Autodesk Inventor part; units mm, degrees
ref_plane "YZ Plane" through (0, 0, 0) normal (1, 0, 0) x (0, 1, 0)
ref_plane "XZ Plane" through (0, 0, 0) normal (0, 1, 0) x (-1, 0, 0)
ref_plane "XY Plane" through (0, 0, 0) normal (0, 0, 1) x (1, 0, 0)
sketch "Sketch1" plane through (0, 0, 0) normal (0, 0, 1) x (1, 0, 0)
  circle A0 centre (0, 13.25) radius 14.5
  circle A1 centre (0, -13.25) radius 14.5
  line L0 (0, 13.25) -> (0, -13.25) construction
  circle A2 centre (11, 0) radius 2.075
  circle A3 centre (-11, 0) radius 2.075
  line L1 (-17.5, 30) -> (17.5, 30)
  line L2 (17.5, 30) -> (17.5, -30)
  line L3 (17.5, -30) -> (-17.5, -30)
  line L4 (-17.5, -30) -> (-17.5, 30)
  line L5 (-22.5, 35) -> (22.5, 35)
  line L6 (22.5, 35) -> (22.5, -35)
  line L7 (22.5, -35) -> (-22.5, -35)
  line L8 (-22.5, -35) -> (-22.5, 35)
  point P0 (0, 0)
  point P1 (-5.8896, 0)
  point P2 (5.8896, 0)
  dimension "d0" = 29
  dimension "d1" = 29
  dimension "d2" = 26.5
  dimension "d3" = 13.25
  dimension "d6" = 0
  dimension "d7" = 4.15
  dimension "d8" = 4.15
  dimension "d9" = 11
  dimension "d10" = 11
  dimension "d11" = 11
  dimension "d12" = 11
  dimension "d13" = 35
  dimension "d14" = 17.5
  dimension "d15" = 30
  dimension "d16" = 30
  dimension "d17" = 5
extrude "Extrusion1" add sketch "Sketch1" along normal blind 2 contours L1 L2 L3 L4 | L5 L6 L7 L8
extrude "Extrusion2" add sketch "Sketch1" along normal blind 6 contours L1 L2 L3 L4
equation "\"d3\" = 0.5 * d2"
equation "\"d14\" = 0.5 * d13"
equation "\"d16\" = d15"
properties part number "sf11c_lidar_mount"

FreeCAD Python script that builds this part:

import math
import FreeCAD as App
import Part
import Sketcher
from FreeCAD import Vector


def add_polygon(sketch, points):
    """Adds a closed chain of lines whose ends are joined by coincident constraints."""
    first, n = sketch.GeometryCount, len(points)
    for a, b in zip(points, points[1:] + points[:1]):
        sketch.addGeometry(Part.LineSegment(App.Vector(*a, 0), App.Vector(*b, 0)), False)
    for i in range(n):
        sketch.addConstraint(Sketcher.Constraint("Coincident", first + i, 2, first + (i + 1) % n, 1))

doc = App.newDocument("Part")
params = doc.addObject("Spreadsheet::Sheet", "Params")
for row, (alias, value) in enumerate([
    ("sketch1_radius", "14.5 mm"),
    ("sketch1_diameter", "4.15 mm"),
    ("sketch1_width", "45 mm"),
    ("pad1_length", "2 mm"),
    ("sketch2_radius", "14.5 mm"),
    ("sketch2_diameter", "4.15 mm"),
    ("sketch2_width", "35 mm"),
    ("pad2_length", "6 mm"),
], start=1):
    params.set(f"A{row}", alias)
    params.set(f"B{row}", "=" + value)
    params.setAlias(f"B{row}", alias)

body = doc.addObject("PartDesign::Body", "Body")

# Sketch on XY plane
sketch1 = body.newObject("Sketcher::SketchObject", "Sketch")
sketch1.AttachmentSupport = (doc.getObject("XY_Plane"), [""])
sketch1.MapMode = "FlatFace"
add_polygon(sketch1, [(22.5, 35), (-22.5, 35), (-22.5, -35), (22.5, -35)])  # lines 0-3
sketch1.addGeometry(Part.Circle(Vector(-11, 0, 0), Vector(0, 0, 1), 2.075), False)  # 4
sketch1.addGeometry(Part.ArcOfCircle(Part.Circle(Vector(0, 13.25, 0), Vector(0, 0, 1), 14.5), math.radians(-66.034909), math.radians(246.034909)), False)  # 5
sketch1.addGeometry(Part.ArcOfCircle(Part.Circle(Vector(0, -13.25, 0), Vector(0, 0, 1), 14.5), math.radians(113.965091), math.radians(426.034909)), False)  # 6
sketch1.addGeometry(Part.Circle(Vector(11, 0, 0), Vector(0, 0, 1), 2.075), False)  # 7
sketch1.addConstraint([
    Sketcher.Constraint("Coincident", 5, 1, 6, 2),
    Sketcher.Constraint("Coincident", 6, 1, 5, 2),
    Sketcher.Constraint("Horizontal", 0),
    Sketcher.Constraint("Vertical", 1),
    Sketcher.Constraint("Horizontal", 2),
    Sketcher.Constraint("Vertical", 3),
    Sketcher.Constraint("Equal", 5, 6),
    Sketcher.Constraint("Equal", 4, 7),
    Sketcher.Constraint("Symmetric", 5, 3, 6, 3, -1, 1),
    Sketcher.Constraint("Symmetric", 4, 3, 7, 3, -1, 1),
    Sketcher.Constraint("Symmetric", 0, 2, 2, 2, -1, 1),
    Sketcher.Constraint("PointOnObject", 4, 3, -1),
    Sketcher.Constraint("PointOnObject", 5, 3, -2),
    Sketcher.Constraint("Radius", 5, 14.5),
    Sketcher.Constraint("Diameter", 4, 4.15),
    Sketcher.Constraint("DistanceX", 4, 3, -1, 1, 11.0),
    Sketcher.Constraint("DistanceY", -1, 1, 0, 2, 35.0),
    Sketcher.Constraint("DistanceY", 6, 3, 5, 3, 26.5),
    Sketcher.Constraint("DistanceX", 0, 2, 0, 1, 45.0),
])
sketch1.setExpression("Constraints[17]", "Params.sketch1_radius")
sketch1.setExpression("Constraints[18]", "Params.sketch1_diameter")
sketch1.setExpression("Constraints[22]", "Params.sketch1_width")
pad1 = body.newObject("PartDesign::Pad", "Pad")
pad1.Profile = sketch1
pad1.setExpression("Length", "Params.pad1_length")

# Sketch on XY plane
sketch2 = body.newObject("Sketcher::SketchObject", "Sketch001")
sketch2.AttachmentSupport = (doc.getObject("XY_Plane"), [""])
sketch2.MapMode = "FlatFace"
add_polygon(sketch2, [(17.5, 30), (-17.5, 30), (-17.5, -30), (17.5, -30)])  # lines 0-3
sketch2.addGeometry(Part.Circle(Vector(-11, 0, 0), Vector(0, 0, 1), 2.075), False)  # 4
sketch2.addGeometry(Part.ArcOfCircle(Part.Circle(Vector(0, 13.25, 0), Vector(0, 0, 1), 14.5), math.radians(-66.034909), math.radians(246.034909)), False)  # 5
sketch2.addGeometry(Part.ArcOfCircle(Part.Circle(Vector(0, -13.25, 0), Vector(0, 0, 1), 14.5), math.radians(113.965091), math.radians(426.034909)), False)  # 6
sketch2.addGeometry(Part.Circle(Vector(11, 0, 0), Vector(0, 0, 1), 2.075), False)  # 7
sketch2.addConstraint([
    Sketcher.Constraint("Coincident", 5, 1, 6, 2),
    Sketcher.Constraint("Coincident", 6, 1, 5, 2),
    Sketcher.Constraint("Horizontal", 0),
    Sketcher.Constraint("Vertical", 1),
    Sketcher.Constraint("Horizontal", 2),
    Sketcher.Constraint("Vertical", 3),
    Sketcher.Constraint("Equal", 5, 6),
    Sketcher.Constraint("Equal", 4, 7),
    Sketcher.Constraint("Symmetric", 5, 3, 6, 3, -1, 1),
    Sketcher.Constraint("Symmetric", 4, 3, 7, 3, -1, 1),
    Sketcher.Constraint("Symmetric", 0, 2, 2, 2, -1, 1),
    Sketcher.Constraint("PointOnObject", 4, 3, -1),
    Sketcher.Constraint("PointOnObject", 5, 3, -2),
    Sketcher.Constraint("Radius", 5, 14.5),
    Sketcher.Constraint("Diameter", 4, 4.15),
    Sketcher.Constraint("DistanceX", 0, 2, 0, 1, 35.0),
    Sketcher.Constraint("DistanceX", 4, 3, -1, 1, 11.0),
    Sketcher.Constraint("DistanceY", -1, 1, 0, 2, 30.0),
    Sketcher.Constraint("DistanceY", 6, 3, 5, 3, 26.5),
])
sketch2.setExpression("Constraints[17]", "Params.sketch2_radius")
sketch2.setExpression("Constraints[18]", "Params.sketch2_diameter")
sketch2.setExpression("Constraints[19]", "Params.sketch2_width")
pad2 = body.newObject("PartDesign::Pad", "Pad001")
pad2.Profile = sketch2
pad2.setExpression("Length", "Params.pad2_length")

doc.recompute()
